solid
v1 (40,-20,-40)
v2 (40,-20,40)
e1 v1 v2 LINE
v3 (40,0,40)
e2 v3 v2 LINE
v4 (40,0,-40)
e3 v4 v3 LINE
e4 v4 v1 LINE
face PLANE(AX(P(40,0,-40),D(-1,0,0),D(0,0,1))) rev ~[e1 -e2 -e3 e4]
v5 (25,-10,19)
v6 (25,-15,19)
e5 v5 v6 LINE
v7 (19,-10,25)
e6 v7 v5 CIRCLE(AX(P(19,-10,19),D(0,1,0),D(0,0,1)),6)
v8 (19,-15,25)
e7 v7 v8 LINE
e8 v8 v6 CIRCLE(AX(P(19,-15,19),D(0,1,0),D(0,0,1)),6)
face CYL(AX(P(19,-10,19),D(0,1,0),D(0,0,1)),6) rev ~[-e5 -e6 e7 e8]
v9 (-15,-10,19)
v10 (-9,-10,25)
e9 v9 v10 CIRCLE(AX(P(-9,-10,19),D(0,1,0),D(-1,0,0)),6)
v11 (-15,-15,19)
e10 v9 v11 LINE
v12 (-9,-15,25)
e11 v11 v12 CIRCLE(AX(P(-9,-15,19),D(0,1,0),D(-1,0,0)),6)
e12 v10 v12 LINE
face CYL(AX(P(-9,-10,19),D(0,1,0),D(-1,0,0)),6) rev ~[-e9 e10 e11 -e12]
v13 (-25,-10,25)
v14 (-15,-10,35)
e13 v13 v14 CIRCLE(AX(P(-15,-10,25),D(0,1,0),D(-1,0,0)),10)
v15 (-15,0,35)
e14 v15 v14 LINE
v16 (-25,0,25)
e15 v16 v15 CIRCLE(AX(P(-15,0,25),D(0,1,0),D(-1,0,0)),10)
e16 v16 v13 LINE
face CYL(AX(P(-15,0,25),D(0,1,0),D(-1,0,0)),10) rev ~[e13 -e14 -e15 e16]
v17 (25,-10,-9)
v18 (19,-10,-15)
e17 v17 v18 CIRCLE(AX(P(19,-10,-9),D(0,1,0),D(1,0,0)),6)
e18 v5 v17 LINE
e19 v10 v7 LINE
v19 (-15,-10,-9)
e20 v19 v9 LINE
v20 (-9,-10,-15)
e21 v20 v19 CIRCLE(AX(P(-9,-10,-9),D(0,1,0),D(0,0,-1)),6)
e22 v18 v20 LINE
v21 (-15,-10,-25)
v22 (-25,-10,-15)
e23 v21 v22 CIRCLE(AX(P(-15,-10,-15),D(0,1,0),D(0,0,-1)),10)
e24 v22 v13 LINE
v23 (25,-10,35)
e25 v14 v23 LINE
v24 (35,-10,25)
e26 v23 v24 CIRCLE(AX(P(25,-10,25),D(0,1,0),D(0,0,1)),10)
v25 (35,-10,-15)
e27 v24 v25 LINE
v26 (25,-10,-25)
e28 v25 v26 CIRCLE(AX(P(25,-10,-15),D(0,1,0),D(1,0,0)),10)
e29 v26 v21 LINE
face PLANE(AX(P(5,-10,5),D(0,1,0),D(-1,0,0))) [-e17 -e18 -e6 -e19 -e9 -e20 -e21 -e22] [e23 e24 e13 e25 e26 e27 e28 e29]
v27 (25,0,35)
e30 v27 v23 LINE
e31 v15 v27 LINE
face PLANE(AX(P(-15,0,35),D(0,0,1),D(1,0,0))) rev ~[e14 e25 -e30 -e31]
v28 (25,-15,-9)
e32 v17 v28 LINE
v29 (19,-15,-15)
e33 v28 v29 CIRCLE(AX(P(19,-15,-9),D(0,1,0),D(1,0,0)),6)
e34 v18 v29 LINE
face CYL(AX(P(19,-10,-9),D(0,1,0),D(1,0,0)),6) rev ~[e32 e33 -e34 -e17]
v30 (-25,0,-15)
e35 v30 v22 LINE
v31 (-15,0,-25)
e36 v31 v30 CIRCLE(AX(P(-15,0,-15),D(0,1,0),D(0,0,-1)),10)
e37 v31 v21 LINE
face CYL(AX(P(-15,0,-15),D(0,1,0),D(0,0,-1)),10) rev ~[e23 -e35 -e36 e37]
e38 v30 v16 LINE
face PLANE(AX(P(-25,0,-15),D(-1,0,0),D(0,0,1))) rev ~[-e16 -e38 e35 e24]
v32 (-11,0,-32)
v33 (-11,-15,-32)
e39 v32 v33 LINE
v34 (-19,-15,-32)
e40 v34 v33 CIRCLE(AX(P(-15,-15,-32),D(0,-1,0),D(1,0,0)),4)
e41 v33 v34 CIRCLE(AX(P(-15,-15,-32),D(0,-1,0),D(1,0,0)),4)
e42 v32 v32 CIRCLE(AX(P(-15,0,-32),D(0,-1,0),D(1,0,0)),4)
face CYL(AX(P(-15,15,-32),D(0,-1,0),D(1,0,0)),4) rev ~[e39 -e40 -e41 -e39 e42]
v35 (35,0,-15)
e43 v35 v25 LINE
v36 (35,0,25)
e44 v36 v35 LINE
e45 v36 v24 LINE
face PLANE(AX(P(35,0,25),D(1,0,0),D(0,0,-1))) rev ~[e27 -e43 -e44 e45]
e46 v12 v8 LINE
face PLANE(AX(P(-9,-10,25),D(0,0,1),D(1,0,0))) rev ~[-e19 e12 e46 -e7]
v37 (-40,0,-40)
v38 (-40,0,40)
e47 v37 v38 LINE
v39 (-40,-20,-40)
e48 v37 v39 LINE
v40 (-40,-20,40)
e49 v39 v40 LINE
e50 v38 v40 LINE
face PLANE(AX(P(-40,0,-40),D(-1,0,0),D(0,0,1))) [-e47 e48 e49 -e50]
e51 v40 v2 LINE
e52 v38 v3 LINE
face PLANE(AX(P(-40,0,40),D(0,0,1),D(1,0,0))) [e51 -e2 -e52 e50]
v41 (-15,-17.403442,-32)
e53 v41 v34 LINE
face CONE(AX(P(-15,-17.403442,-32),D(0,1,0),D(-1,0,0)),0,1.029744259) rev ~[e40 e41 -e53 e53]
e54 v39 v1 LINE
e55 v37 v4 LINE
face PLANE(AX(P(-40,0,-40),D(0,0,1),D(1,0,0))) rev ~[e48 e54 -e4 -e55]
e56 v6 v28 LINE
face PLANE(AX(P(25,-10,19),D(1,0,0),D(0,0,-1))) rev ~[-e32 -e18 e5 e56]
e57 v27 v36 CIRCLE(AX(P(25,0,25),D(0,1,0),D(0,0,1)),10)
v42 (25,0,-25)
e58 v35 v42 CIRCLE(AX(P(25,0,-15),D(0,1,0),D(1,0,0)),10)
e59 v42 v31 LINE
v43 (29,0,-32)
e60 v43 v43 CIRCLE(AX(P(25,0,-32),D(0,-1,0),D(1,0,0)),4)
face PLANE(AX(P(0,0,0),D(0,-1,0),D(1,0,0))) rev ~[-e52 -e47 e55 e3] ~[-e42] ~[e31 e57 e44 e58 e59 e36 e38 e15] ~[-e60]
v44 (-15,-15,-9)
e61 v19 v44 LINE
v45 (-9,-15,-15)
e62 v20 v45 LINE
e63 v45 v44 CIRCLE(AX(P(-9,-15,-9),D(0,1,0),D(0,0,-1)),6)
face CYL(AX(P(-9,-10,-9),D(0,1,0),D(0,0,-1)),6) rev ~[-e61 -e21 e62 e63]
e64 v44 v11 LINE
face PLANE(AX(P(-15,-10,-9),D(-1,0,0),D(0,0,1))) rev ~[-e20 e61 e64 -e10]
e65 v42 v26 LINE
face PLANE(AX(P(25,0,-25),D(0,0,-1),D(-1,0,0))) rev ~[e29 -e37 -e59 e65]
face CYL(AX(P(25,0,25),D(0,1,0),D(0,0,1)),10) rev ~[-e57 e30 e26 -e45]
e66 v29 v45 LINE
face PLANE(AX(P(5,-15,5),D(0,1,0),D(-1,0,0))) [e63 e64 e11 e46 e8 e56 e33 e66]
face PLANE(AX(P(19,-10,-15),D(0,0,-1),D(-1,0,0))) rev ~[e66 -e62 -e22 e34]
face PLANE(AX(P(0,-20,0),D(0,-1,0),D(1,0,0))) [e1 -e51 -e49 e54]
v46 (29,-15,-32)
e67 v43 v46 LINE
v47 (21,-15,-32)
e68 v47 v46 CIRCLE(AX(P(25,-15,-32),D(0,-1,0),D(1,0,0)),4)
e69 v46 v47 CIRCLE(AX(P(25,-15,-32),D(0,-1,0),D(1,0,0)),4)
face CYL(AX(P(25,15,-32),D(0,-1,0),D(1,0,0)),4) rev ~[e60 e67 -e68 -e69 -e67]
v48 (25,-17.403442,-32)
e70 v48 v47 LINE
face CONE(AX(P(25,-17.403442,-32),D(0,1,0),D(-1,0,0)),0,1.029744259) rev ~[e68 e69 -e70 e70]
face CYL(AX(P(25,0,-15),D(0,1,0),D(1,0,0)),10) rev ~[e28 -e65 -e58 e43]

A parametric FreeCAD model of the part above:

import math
import FreeCAD as App
import Part
import Sketcher
Q = App.Units.Quantity

doc = App.newDocument("Part")
body = doc.addObject("PartDesign::Body", "Body")

sketch1 = doc.addObject("Sketcher::SketchObject", "Sketch")
body.addObject(sketch1)
sketch1.AttachmentSupport = (doc.XZ_Plane, [""])
sketch1.MapMode = "FlatFace"
sketch1.addGeometry([
    Part.LineSegment(App.Vector(-40, 40, 0), App.Vector(-40, -40, 0)),
    Part.LineSegment(App.Vector(-40, -40, 0), App.Vector(40, -40, 0)),
    Part.LineSegment(App.Vector(40, -40, 0), App.Vector(40, 40, 0)),
    Part.LineSegment(App.Vector(40, 40, 0), App.Vector(-40, 40, 0)),
], False)
sketch1.addConstraint([
    Sketcher.Constraint("Coincident", 0, 2, 1, 1),
    Sketcher.Constraint("Coincident", 1, 2, 2, 1),
    Sketcher.Constraint("Coincident", 2, 2, 3, 1),
    Sketcher.Constraint("Coincident", 3, 2, 0, 1),
    Sketcher.Constraint("Vertical", 0),
    Sketcher.Constraint("Horizontal", 1),
    Sketcher.Constraint("Vertical", 2),
    Sketcher.Constraint("Horizontal", 3),
    Sketcher.Constraint("Symmetric", 0, 2, 2, 2, -1, 1),
    Sketcher.Constraint("Equal", 3, 0),
    Sketcher.Constraint("DistanceX", 1, 1, 1, 2, Q("80 mm")),
])
pad1 = doc.addObject("PartDesign::Pad", "Pad")
body.addObject(pad1)
pad1.Profile = sketch1
pad1.Length = 20

sketch2 = doc.addObject("Sketcher::SketchObject", "Sketch001")
body.addObject(sketch2)
sketch2.AttachmentSupport = (doc.XZ_Plane, [""])
sketch2.MapMode = "FlatFace"
sketch2.addGeometry([
    Part.Circle(App.Vector(25, -32, 0), App.Vector(0, 0, 1), 4),
    Part.Circle(App.Vector(-15, -32, 0), App.Vector(0, 0, 1), 4),
], False)
sketch2.addConstraint([
    Sketcher.Constraint("Equal", 0, 1),
    Sketcher.Constraint("Horizontal", 0, 3, 1, 3),
    Sketcher.Constraint("Diameter", 0, Q("8 mm")),
    Sketcher.Constraint("DistanceX", -1, 1, 0, 3, Q("25 mm")),
    Sketcher.Constraint("DistanceY", 0, 3, -1, 1, Q("32 mm")),
    Sketcher.Constraint("DistanceX", 1, 3, -1, 1, Q("15 mm")),
])
doc.recompute()
hole = doc.addObject("PartDesign::Hole", "Hole")
body.addObject(hole)
hole.Profile = sketch2
hole.ThreadType = "None"
hole.Diameter = 8
hole.DepthType = "Dimension"
hole.Depth = 15
hole.DrillPoint = "Angled"
hole.DrillPointAngle = 118
hole.Reversed = True

sketch3 = doc.addObject("Sketcher::SketchObject", "Sketch002")
body.addObject(sketch3)
sketch3.AttachmentSupport = (doc.XZ_Plane, [""])
sketch3.MapMode = "FlatFace"
sketch3.addGeometry([
    Part.ArcOfCircle(Part.Circle(App.Vector(-15, 25, 0), App.Vector(0, 0, 1), 10), math.radians(90), math.radians(180)),
    Part.LineSegment(App.Vector(-15, 35, 0), App.Vector(25, 35, 0)),
    Part.ArcOfCircle(Part.Circle(App.Vector(25, 25, 0), App.Vector(0, 0, 1), 10), math.radians(0), math.radians(90)),
    Part.LineSegment(App.Vector(35, 25, 0), App.Vector(35, -15, 0)),
    Part.ArcOfCircle(Part.Circle(App.Vector(25, -15, 0), App.Vector(0, 0, 1), 10), math.radians(-90), math.radians(0)),
    Part.LineSegment(App.Vector(25, -25, 0), App.Vector(-15, -25, 0)),
    Part.ArcOfCircle(Part.Circle(App.Vector(-15, -15, 0), App.Vector(0, 0, 1), 10), math.radians(180), math.radians(270)),
    Part.LineSegment(App.Vector(-25, -15, 0), App.Vector(-25, 25, 0)),
], False)
sketch3.addConstraint([
    Sketcher.Constraint("Tangent", 0, 1, 1, 1),
    Sketcher.Constraint("Tangent", 1, 2, 2, 2),
    Sketcher.Constraint("Tangent", 2, 1, 3, 1),
    Sketcher.Constraint("Tangent", 3, 2, 4, 2),
    Sketcher.Constraint("Tangent", 4, 1, 5, 1),
    Sketcher.Constraint("Tangent", 5, 2, 6, 2),
    Sketcher.Constraint("Tangent", 6, 1, 7, 1),
    Sketcher.Constraint("Tangent", 7, 2, 0, 2),
    Sketcher.Constraint("Horizontal", 1),
    Sketcher.Constraint("Vertical", 3),
    Sketcher.Constraint("Horizontal", 5),
    Sketcher.Constraint("Vertical", 7),
    Sketcher.Constraint("Equal", 0, 2),
    Sketcher.Constraint("Equal", 2, 4),
    Sketcher.Constraint("Equal", 4, 6),
    Sketcher.Constraint("Symmetric", 4, 1, 7, 2, -1, 1),
    Sketcher.Constraint("Equal", 5, 3),
    Sketcher.Constraint("Radius", 0, Q("10 mm")),
    Sketcher.Constraint("DistanceX", 1, 1, 1, 2, Q("40 mm")),
])
pocket1 = doc.addObject("PartDesign::Pocket", "Pocket")
body.addObject(pocket1)
pocket1.Profile = sketch3
pocket1.Length = 10
pocket1.Reversed = True

sketch4 = doc.addObject("Sketcher::SketchObject", "Sketch003")
body.addObject(sketch4)
sketch4.AttachmentSupport = (doc.XZ_Plane, [""])
sketch4.MapMode = "FlatFace"
sketch4.AttachmentOffset = App.Placement(App.Vector(0, 0, 10), App.Rotation())
sketch4.addGeometry([
    Part.ArcOfCircle(Part.Circle(App.Vector(19, -9, 0), App.Vector(0, 0, 1), 6), math.radians(-90), math.radians(0)),
    Part.LineSegment(App.Vector(19, -15, 0), App.Vector(-9, -15, 0)),
    Part.ArcOfCircle(Part.Circle(App.Vector(-9, -9, 0), App.Vector(0, 0, 1), 6), math.radians(180), math.radians(270)),
    Part.LineSegment(App.Vector(-15, -9, 0), App.Vector(-15, 19, 0)),
    Part.ArcOfCircle(Part.Circle(App.Vector(-9, 19, 0), App.Vector(0, 0, 1), 6), math.radians(90), math.radians(180)),
    Part.LineSegment(App.Vector(-9, 25, 0), App.Vector(19, 25, 0)),
    Part.ArcOfCircle(Part.Circle(App.Vector(19, 19, 0), App.Vector(0, 0, 1), 6), math.radians(0), math.radians(90)),
    Part.LineSegment(App.Vector(25, 19, 0), App.Vector(25, -9, 0)),
], False)
sketch4.addConstraint([
    Sketcher.Constraint("Tangent", 0, 1, 1, 1),
    Sketcher.Constraint("Tangent", 1, 2, 2, 2),
    Sketcher.Constraint("Tangent", 2, 1, 3, 1),
    Sketcher.Constraint("Tangent", 3, 2, 4, 2),
    Sketcher.Constraint("Tangent", 4, 1, 5, 1),
    Sketcher.Constraint("Tangent", 5, 2, 6, 2),
    Sketcher.Constraint("Tangent", 6, 1, 7, 1),
    Sketcher.Constraint("Tangent", 7, 2, 0, 2),
    Sketcher.Constraint("Horizontal", 1),
    Sketcher.Constraint("Vertical", 3),
    Sketcher.Constraint("Horizontal", 5),
    Sketcher.Constraint("Vertical", 7),
    Sketcher.Constraint("Equal", 0, 2),
    Sketcher.Constraint("Equal", 2, 4),
    Sketcher.Constraint("Equal", 4, 6),
    Sketcher.Constraint("Equal", 5, 3),
    Sketcher.Constraint("Radius", 0, Q("6 mm")),
    Sketcher.Constraint("DistanceX", 1, 2, 1, 1, Q("28 mm")),
    Sketcher.Constraint("DistanceX", -1, 1, 0, 3, Q("19 mm")),
    Sketcher.Constraint("DistanceY", 0, 3, -1, 1, Q("9 mm")),
])
pocket2 = doc.addObject("PartDesign::Pocket", "Pocket001")
body.addObject(pocket2)
pocket2.Profile = sketch4
pocket2.Length = 5
pocket2.Reversed = True

doc.recompute()
